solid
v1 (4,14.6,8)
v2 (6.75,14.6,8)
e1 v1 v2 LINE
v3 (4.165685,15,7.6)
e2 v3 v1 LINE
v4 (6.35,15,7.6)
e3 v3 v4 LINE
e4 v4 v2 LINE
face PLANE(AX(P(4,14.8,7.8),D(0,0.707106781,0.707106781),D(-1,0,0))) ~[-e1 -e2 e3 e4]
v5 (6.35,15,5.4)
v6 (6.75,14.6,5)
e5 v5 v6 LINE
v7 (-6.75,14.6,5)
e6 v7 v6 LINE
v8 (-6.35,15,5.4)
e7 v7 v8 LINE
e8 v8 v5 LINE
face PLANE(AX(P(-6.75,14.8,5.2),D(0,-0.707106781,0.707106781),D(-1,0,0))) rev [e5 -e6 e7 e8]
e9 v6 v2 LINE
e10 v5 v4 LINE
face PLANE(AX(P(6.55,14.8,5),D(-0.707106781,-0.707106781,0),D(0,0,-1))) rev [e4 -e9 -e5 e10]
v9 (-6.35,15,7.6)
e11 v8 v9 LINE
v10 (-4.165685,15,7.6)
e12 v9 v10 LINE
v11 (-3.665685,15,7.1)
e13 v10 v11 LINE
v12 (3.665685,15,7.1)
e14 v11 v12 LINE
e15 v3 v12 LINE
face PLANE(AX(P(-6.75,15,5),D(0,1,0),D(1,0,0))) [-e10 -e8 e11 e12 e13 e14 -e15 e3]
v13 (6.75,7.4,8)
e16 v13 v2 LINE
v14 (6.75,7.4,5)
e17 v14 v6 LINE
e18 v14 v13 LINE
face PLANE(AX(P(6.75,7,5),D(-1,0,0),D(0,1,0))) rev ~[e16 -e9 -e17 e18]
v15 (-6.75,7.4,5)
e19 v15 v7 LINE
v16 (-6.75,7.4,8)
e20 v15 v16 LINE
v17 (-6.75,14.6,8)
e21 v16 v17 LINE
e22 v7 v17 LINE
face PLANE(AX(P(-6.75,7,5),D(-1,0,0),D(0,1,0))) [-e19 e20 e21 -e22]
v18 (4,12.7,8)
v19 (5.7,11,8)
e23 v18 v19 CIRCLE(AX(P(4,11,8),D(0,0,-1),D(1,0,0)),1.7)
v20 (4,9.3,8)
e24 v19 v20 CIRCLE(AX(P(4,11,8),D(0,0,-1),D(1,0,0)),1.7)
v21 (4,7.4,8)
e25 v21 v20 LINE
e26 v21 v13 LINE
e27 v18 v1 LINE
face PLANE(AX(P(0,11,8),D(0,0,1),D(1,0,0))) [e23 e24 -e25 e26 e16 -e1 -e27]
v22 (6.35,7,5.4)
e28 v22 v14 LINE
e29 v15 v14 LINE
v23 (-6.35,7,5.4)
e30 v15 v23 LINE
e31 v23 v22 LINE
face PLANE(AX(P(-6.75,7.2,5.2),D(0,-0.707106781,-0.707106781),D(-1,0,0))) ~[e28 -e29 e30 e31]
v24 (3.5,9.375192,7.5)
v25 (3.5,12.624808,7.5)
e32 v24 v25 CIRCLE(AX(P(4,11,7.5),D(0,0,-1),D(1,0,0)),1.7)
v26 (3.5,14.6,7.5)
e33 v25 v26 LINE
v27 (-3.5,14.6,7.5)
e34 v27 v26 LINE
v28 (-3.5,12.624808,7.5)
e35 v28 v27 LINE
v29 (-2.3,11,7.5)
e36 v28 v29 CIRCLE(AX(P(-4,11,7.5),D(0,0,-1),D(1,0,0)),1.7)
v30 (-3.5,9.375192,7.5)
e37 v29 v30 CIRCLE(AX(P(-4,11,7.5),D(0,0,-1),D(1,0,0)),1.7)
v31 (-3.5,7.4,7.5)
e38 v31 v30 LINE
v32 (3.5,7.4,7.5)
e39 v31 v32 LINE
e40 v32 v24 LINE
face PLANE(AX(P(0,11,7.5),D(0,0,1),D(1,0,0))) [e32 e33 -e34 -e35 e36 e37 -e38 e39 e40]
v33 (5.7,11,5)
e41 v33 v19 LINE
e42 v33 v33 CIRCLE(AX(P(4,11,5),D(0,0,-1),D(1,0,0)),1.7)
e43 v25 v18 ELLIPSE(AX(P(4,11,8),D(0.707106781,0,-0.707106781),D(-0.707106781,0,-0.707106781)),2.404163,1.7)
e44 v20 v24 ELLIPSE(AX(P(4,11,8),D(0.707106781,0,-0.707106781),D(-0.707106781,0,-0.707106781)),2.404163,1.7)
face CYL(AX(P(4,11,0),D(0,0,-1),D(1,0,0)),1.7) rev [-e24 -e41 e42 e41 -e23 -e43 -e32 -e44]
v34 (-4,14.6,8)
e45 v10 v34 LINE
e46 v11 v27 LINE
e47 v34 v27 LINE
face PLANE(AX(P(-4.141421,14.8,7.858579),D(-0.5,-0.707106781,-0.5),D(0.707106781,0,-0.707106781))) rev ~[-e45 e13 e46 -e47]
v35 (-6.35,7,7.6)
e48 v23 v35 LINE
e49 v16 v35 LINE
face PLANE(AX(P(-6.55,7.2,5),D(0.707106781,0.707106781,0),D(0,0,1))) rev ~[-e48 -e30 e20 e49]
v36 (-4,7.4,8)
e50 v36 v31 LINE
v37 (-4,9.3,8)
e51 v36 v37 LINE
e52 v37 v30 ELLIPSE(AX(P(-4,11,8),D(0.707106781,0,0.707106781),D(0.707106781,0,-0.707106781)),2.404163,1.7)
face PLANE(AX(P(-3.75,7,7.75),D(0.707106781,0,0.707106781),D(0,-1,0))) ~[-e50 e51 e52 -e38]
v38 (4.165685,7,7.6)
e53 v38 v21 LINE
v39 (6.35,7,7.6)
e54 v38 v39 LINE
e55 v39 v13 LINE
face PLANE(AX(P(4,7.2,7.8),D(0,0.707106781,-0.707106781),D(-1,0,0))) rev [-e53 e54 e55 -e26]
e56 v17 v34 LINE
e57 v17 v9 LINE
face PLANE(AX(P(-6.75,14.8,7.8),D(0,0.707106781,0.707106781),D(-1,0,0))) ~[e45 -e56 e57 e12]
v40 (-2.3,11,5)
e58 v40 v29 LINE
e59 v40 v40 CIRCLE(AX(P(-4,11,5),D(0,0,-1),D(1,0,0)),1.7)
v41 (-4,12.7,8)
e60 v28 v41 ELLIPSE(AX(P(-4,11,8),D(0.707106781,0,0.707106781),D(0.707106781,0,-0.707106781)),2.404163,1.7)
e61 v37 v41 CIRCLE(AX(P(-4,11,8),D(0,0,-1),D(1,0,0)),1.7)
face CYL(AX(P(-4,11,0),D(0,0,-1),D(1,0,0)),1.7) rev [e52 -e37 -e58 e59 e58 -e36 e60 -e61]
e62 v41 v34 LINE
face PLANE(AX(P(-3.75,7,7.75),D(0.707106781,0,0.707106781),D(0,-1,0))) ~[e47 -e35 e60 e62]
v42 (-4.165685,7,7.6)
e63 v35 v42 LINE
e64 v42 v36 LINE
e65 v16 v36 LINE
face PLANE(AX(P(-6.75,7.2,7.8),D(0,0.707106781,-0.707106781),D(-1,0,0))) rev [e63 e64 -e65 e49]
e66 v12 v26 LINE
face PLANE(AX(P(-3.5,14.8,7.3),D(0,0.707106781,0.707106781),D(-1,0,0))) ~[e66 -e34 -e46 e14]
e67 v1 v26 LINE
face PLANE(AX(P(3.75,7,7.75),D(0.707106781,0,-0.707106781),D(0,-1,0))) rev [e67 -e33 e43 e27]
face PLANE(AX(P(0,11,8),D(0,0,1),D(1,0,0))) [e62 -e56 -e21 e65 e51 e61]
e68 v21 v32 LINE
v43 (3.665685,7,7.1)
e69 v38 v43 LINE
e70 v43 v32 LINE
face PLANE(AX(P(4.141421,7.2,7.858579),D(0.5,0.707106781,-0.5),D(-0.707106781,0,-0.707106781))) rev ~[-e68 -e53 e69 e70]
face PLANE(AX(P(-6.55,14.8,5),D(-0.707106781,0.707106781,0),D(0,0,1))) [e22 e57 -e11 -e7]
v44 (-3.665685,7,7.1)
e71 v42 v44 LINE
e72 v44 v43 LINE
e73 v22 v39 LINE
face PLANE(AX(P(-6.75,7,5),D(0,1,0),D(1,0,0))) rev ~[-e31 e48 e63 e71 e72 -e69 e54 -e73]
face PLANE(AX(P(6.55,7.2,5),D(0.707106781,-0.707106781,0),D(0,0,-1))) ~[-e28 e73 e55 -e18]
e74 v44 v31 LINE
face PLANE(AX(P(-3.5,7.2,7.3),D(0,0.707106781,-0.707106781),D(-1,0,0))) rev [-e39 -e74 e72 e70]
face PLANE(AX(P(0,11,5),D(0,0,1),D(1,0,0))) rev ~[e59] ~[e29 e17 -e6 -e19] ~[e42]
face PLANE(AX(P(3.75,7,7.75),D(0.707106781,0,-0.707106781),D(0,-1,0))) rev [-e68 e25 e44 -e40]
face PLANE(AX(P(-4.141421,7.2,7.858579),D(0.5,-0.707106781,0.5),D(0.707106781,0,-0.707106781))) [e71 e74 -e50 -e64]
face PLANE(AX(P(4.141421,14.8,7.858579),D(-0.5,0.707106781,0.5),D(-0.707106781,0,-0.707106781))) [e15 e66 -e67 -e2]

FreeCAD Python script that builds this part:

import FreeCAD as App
import Part
import Sketcher
from FreeCAD import Vector


def edges_at(feature, points):
    """Names of the edges that pass closest to the given points."""
    edges = feature.Shape.Edges
    near = lambda p: min(range(len(edges)), key=lambda i: edges[i].distToShape(Part.Vertex(*p))[0])
    return sorted({f"Edge{near(p) + 1}" for p in points})

doc = App.newDocument("Part")
body = doc.addObject("PartDesign::Body", "Body")

# Sketch on XY plane
sketch1 = body.newObject("Sketcher::SketchObject", "Sketch")
sketch1.AttachmentSupport = (doc.getObject("XY_Plane"), [""])
sketch1.MapMode = "FlatFace"
sketch1.addGeometry(Part.Circle(Vector(-4, 11, 0), Vector(0, 0, 1), 1.7), False)
sketch1.addConstraint([
    Sketcher.Constraint("Diameter", 0, 3.4),
    Sketcher.Constraint("DistanceX", 0, 3, -1, 1, 4.0),
    Sketcher.Constraint("DistanceY", -1, 1, 0, 3, 11.0),
])
pad1 = body.newObject("PartDesign::Pad", "Pad")
pad1.Profile = sketch1
pad1.Length = 10
body2 = doc.addObject("PartDesign::Body", "Body001")
body2.AllowCompound = True

# Sketch on XY plane
sketch2 = body2.newObject("Sketcher::SketchObject", "Sketch001")
sketch2.AttachmentSupport = (doc.getObject("XY_Plane001"), [""])
sketch2.MapMode = "FlatFace"
sketch2.addGeometry(Part.Circle(Vector(4, 11, 0), Vector(0, 0, 1), 1.7), False)
sketch2.addConstraint([
    Sketcher.Constraint("Diameter", 0, 3.4),
    Sketcher.Constraint("DistanceX", -1, 1, 0, 3, 4.0),
    Sketcher.Constraint("DistanceY", -1, 1, 0, 3, 11.0),
])
pad2 = body2.newObject("PartDesign::Pad", "Pad001")
pad2.Profile = sketch2
pad2.Length = 10
doc.recompute()

boolean = body2.newObject("PartDesign::Boolean", "Boolean")
boolean.Type = "Fuse"
boolean.addObjects([body])
body3 = doc.addObject("PartDesign::Body", "Body002")

# Sketch on XY plane
sketch3 = body3.newObject("Sketcher::SketchObject", "Sketch002")
sketch3.AttachmentSupport = (doc.getObject("XY_Plane002"), [""])
sketch3.MapMode = "FlatFace"
sketch3.AttachmentOffset = App.Placement(Vector(0, 0, 7.5), App.Rotation())
sketch3.addGeometry([
    Part.LineSegment(Vector(-4, 15, 0), Vector(-4, 7, 0)),
    Part.LineSegment(Vector(-4, 7, 0), Vector(4, 7, 0)),
    Part.LineSegment(Vector(4, 7, 0), Vector(4, 15, 0)),
    Part.LineSegment(Vector(4, 15, 0), Vector(-4, 15, 0)),
], False)
sketch3.addConstraint([
    Sketcher.Constraint("Coincident", 0, 2, 1, 1),
    Sketcher.Constraint("Coincident", 1, 2, 2, 1),
    Sketcher.Constraint("Coincident", 2, 2, 3, 1),
    Sketcher.Constraint("Coincident", 3, 2, 0, 1),
    Sketcher.Constraint("Vertical", 0),
    Sketcher.Constraint("Horizontal", 1),
    Sketcher.Constraint("Vertical", 2),
    Sketcher.Constraint("Horizontal", 3),
    Sketcher.Constraint("Equal", 3, 0),
    Sketcher.Constraint("DistanceX", 1, 1, 1, 2, 8.0),
    Sketcher.Constraint("DistanceX", 0, 2, -1, 1, 4.0),
    Sketcher.Constraint("DistanceY", -1, 1, 0, 2, 7.0),
])
pad3 = body3.newObject("PartDesign::Pad", "Pad002")
pad3.Profile = sketch3
pad3.Length = 1.5
doc.recompute()

chamfer = body3.newObject("PartDesign::Chamfer", "Chamfer")
chamfer.Base = (pad3, edges_at(pad3, [(-4, 11, 7.5), (4, 11, 7.5)]))
chamfer.Size = 0.5
body4 = doc.addObject("PartDesign::Body", "Body003")

# Sketch on XY plane
sketch4 = body4.newObject("Sketcher::SketchObject", "Sketch003")
sketch4.AttachmentSupport = (doc.getObject("XY_Plane003"), [""])
sketch4.MapMode = "FlatFace"
sketch4.AttachmentOffset = App.Placement(Vector(0, 0, 5), App.Rotation())
sketch4.addGeometry([
    Part.LineSegment(Vector(-7, 15, 0), Vector(-7, 7, 0)),
    Part.LineSegment(Vector(-7, 7, 0), Vector(7, 7, 0)),
    Part.LineSegment(Vector(7, 7, 0), Vector(7, 15, 0)),
    Part.LineSegment(Vector(7, 15, 0), Vector(-7, 15, 0)),
], False)
sketch4.addConstraint([
    Sketcher.Constraint("Coincident", 0, 2, 1, 1),
    Sketcher.Constraint("Coincident", 1, 2, 2, 1),
    Sketcher.Constraint("Coincident", 2, 2, 3, 1),
    Sketcher.Constraint("Coincident", 3, 2, 0, 1),
    Sketcher.Constraint("Vertical", 0),
    Sketcher.Constraint("Horizontal", 1),
    Sketcher.Constraint("Vertical", 2),
    Sketcher.Constraint("Horizontal", 3),
    Sketcher.Constraint("DistanceY", 0, 2, 0, 1, 8.0),
    Sketcher.Constraint("DistanceX", 1, 1, 1, 2, 13.5),
    Sketcher.Constraint("DistanceY", -1, 1, 0, 2, 7.0),
    Sketcher.Constraint("DistanceX", 0, 2, -1, 1, 6.75),
])
pad4 = body4.newObject("PartDesign::Pad", "Pad003")
pad4.Profile = sketch4
pad4.Length = 3
doc.recompute()

boolean2 = body4.newObject("PartDesign::Boolean", "Boolean001")
boolean2.Type = "Cut"
boolean2.addObjects([body3])
doc.recompute()

boolean3 = body4.newObject("PartDesign::Boolean", "Boolean002")
boolean3.Type = "Cut"
boolean3.addObjects([body2])
doc.recompute()

chamfer2 = body4.newObject("PartDesign::Chamfer", "Chamfer001")
chamfer2.Base = (boolean3, edges_at(boolean3, [
    (-6.75, 7, 6.5),
    (-6.75, 15, 6.5),
    (6.75, 7, 6.5),
    (5.375, 7, 8),
    (3.75, 7, 7.75),
    (0, 7, 7.5),
    (-3.75, 7, 7.75),
    (-5.375, 7, 8),
    (0, 7, 5),
    (-5.375, 15, 8),
    (6.75, 15, 6.5),
    (5.375, 15, 8),
    (3.75, 15, 7.75),
    (0, 15, 7.5),
    (-3.75, 15, 7.75),
    (0, 15, 5),
]))
chamfer2.Size = 0.4

doc.recompute()
